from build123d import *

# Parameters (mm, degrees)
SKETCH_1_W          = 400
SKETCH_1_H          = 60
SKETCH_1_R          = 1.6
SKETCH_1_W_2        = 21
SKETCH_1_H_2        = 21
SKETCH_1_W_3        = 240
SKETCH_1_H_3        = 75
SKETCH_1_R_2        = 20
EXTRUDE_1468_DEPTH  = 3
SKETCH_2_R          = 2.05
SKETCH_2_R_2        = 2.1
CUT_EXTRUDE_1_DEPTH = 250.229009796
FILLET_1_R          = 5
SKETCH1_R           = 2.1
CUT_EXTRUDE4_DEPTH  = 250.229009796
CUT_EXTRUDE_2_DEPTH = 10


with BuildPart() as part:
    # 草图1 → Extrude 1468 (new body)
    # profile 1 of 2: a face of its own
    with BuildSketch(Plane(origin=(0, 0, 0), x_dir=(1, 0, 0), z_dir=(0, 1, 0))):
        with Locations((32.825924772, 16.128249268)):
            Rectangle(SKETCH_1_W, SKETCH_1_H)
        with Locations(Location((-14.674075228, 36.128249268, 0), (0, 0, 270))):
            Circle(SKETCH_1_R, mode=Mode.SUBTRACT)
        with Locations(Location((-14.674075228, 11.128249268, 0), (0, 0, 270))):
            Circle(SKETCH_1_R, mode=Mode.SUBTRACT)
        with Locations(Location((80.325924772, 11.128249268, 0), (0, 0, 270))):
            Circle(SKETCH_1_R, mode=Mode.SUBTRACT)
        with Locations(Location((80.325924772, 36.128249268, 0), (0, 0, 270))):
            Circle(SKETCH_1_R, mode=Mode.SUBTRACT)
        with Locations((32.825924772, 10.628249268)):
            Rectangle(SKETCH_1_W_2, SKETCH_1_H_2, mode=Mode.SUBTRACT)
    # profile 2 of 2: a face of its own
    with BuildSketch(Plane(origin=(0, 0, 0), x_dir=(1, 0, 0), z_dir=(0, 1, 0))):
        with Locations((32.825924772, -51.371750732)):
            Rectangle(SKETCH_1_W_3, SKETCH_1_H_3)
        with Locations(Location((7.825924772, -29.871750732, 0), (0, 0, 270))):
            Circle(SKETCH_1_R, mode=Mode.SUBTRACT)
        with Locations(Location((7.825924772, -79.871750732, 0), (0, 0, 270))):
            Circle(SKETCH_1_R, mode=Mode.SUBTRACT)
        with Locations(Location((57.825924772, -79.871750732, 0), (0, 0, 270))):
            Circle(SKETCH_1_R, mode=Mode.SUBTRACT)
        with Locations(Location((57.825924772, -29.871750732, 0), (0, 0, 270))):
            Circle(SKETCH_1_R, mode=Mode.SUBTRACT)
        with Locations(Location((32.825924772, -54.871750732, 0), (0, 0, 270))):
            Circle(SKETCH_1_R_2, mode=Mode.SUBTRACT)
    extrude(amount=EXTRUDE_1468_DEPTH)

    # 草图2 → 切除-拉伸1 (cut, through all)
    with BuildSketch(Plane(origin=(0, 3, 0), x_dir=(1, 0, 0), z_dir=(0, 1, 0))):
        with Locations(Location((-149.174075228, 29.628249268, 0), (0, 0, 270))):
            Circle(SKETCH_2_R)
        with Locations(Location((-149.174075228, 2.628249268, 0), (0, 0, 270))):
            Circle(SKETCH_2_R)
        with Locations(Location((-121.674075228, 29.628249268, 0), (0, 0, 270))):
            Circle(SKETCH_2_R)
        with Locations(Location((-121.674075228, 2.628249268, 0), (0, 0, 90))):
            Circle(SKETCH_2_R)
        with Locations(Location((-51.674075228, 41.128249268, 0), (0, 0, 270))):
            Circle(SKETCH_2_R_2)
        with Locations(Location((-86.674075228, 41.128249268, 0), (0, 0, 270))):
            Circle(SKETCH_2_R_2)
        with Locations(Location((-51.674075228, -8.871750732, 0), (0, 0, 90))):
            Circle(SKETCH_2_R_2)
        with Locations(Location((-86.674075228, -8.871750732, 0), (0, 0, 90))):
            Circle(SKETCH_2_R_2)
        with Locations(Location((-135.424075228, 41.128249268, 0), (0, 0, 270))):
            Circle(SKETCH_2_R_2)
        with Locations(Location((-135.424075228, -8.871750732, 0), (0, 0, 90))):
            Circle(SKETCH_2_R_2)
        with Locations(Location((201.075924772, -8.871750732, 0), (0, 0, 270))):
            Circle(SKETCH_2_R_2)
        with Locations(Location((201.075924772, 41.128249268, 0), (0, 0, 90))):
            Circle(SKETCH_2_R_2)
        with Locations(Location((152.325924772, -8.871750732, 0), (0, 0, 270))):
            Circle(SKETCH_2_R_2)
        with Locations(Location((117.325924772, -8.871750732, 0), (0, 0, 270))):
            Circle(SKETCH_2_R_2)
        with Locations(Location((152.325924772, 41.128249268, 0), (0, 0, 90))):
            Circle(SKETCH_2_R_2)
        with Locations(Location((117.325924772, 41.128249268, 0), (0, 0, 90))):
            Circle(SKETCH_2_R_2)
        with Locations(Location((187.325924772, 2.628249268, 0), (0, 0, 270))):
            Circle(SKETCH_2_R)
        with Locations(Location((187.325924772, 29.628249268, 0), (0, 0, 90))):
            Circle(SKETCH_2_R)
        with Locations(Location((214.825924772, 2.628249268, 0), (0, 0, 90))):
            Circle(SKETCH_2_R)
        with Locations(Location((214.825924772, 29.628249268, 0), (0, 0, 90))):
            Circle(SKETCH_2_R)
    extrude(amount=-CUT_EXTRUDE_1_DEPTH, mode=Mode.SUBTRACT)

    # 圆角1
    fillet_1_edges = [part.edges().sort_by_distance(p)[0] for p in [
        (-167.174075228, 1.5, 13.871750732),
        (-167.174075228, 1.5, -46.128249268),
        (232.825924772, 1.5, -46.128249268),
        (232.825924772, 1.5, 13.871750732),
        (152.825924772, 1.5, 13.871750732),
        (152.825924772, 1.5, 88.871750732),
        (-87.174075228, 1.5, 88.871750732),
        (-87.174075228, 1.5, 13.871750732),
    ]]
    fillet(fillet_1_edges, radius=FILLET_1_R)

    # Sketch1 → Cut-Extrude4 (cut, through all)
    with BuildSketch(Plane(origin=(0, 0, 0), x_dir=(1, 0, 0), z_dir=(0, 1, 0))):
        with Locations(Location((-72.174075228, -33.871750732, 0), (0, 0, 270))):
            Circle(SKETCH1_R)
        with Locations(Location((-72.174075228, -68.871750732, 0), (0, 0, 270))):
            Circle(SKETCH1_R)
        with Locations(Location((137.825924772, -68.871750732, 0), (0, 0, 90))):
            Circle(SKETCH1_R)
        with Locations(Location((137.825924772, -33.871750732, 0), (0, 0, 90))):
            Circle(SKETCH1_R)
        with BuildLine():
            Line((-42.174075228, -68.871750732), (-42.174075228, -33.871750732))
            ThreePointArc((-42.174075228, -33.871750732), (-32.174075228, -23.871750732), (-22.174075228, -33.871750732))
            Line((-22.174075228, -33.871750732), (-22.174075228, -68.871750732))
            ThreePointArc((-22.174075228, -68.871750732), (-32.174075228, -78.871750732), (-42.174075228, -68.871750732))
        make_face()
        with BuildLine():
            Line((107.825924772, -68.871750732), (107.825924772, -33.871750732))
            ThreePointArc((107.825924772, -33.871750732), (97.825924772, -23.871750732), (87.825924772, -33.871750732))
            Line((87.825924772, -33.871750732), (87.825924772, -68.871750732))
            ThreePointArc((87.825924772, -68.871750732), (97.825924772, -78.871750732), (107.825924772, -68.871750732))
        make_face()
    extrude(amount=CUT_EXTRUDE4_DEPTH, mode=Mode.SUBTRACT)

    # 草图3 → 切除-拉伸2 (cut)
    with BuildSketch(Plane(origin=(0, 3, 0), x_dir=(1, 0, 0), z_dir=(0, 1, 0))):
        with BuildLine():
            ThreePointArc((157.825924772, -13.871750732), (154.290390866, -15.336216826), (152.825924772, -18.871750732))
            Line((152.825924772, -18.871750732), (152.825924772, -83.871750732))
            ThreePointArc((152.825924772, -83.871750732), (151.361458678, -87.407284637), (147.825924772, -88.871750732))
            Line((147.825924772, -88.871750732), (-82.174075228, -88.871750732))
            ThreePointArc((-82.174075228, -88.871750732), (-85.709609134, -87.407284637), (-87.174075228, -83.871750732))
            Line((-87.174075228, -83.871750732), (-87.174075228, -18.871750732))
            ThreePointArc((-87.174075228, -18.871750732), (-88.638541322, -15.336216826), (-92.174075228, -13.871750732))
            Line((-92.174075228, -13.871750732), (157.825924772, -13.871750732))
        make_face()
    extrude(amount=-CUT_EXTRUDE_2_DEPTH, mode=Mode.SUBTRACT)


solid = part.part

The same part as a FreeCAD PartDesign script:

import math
import FreeCAD as App
import Part
import Sketcher
Q = App.Units.Quantity


def edges_at(feature, points):
    """Names of the edges that pass closest to the given points."""
    edges = feature.Shape.Edges
    near = lambda p: min(range(len(edges)), key=lambda i: edges[i].distToShape(Part.Vertex(*p))[0])
    return sorted({f"Edge{near(p) + 1}" for p in points})

doc = App.newDocument("Part")
body = doc.addObject("PartDesign::Body", "Body")

sketch1 = body.newObject("Sketcher::SketchObject", "Sketch")
sketch1.AttachmentSupport = (doc.getObject("XZ_Plane"), [""])
sketch1.MapMode = "FlatFace"
sketch1.addGeometry([
    Part.LineSegment(App.Vector(-167.2, -46.1, 0), App.Vector(-167.2, 13.9, 0)),
    Part.LineSegment(App.Vector(-167.2, 13.9, 0), App.Vector(-87.2, 13.9, 0)),
    Part.LineSegment(App.Vector(-87.2, 13.9, 0), App.Vector(-87.2, 88.9, 0)),
    Part.LineSegment(App.Vector(-87.2, 88.9, 0), App.Vector(152.8, 88.9, 0)),
    Part.LineSegment(App.Vector(152.8, 88.9, 0), App.Vector(152.8, 13.9, 0)),
    Part.LineSegment(App.Vector(152.8, 13.9, 0), App.Vector(232.8, 13.9, 0)),
    Part.LineSegment(App.Vector(232.8, 13.9, 0), App.Vector(232.8, -46.1, 0)),
    Part.LineSegment(App.Vector(232.8, -46.1, 0), App.Vector(-167.2, -46.1, 0)),
    Part.Circle(App.Vector(-14.7, -11.1, 0), App.Vector(0, 0, 1), 1.6),
    Part.LineSegment(App.Vector(43.3, -0.1, 0), App.Vector(22.3, -0.1, 0)),
    Part.LineSegment(App.Vector(22.3, -0.1, 0), App.Vector(22.3, -21.1, 0)),
    Part.LineSegment(App.Vector(22.3, -21.1, 0), App.Vector(43.3, -21.1, 0)),
    Part.LineSegment(App.Vector(43.3, -21.1, 0), App.Vector(43.3, -0.1, 0)),
    Part.Circle(App.Vector(80.3, -11.1, 0), App.Vector(0, 0, 1), 1.6),
    Part.Circle(App.Vector(-14.7, -36.1, 0), App.Vector(0, 0, 1), 1.6),
    Part.Circle(App.Vector(80.3, -36.1, 0), App.Vector(0, 0, 1), 1.6),
    Part.Circle(App.Vector(57.8, 29.9, 0), App.Vector(0, 0, 1), 1.6),
    Part.Circle(App.Vector(7.8, 79.9, 0), App.Vector(0, 0, 1), 1.6),
    Part.Circle(App.Vector(57.8, 79.9, 0), App.Vector(0, 0, 1), 1.6),
    Part.Circle(App.Vector(32.8, 54.9, 0), App.Vector(0, 0, 1), 20),
    Part.Circle(App.Vector(7.8, 29.9, 0), App.Vector(0, 0, 1), 1.6),
], False)
sketch1.addConstraint([
    Sketcher.Constraint("Coincident", 0, 2, 1, 1),
    Sketcher.Constraint("Coincident", 1, 2, 2, 1),
    Sketcher.Constraint("Coincident", 2, 2, 3, 1),
    Sketcher.Constraint("Coincident", 3, 2, 4, 1),
    Sketcher.Constraint("Coincident", 4, 2, 5, 1),
    Sketcher.Constraint("Coincident", 5, 2, 6, 1),
    Sketcher.Constraint("Coincident", 6, 2, 7, 1),
    Sketcher.Constraint("Coincident", 7, 2, 0, 1),
    Sketcher.Constraint("Coincident", 9, 2, 10, 1),
    Sketcher.Constraint("Coincident", 10, 2, 11, 1),
    Sketcher.Constraint("Coincident", 11, 2, 12, 1),
    Sketcher.Constraint("Coincident", 12, 2, 9, 1),
    Sketcher.Constraint("Vertical", 0),
    Sketcher.Constraint("Horizontal", 1),
    Sketcher.Constraint("Vertical", 2),
    Sketcher.Constraint("Horizontal", 3),
    Sketcher.Constraint("Vertical", 4),
    Sketcher.Constraint("Horizontal", 5),
    Sketcher.Constraint("Vertical", 6),
    Sketcher.Constraint("Horizontal", 7),
    Sketcher.Constraint("Horizontal", 9),
    Sketcher.Constraint("Vertical", 10),
    Sketcher.Constraint("Horizontal", 11),
    Sketcher.Constraint("Vertical", 12),
    Sketcher.Constraint("Equal", 8, 13),
    Sketcher.Constraint("Equal", 13, 14),
    Sketcher.Constraint("Equal", 14, 15),
    Sketcher.Constraint("Equal", 15, 16),
    Sketcher.Constraint("Equal", 16, 17),
    Sketcher.Constraint("Equal", 17, 18),
    Sketcher.Constraint("Equal", 18, 20),
    Sketcher.Constraint("Horizontal", 8, 3, 13, 3),
    Sketcher.Constraint("Horizontal", 14, 3, 15, 3),
    Sketcher.Constraint("Horizontal", 17, 3, 18, 3),
    Sketcher.Constraint("Horizontal", 16, 3, 20, 3),
    Sketcher.Constraint("Horizontal", 1, 2, 4, 2),
    Sketcher.Constraint("Vertical", 8, 3, 14, 3),
    Sketcher.Constraint("Vertical", 13, 3, 15, 3),
    Sketcher.Constraint("Vertical", 16, 3, 18, 3),
    Sketcher.Constraint("Vertical", 17, 3, 20, 3),
    Sketcher.Constraint("Equal", 1, 5),
    Sketcher.Constraint("Equal", 11, 10),
    Sketcher.Constraint("Diameter", 19, Q("40 mm")),
    Sketcher.Constraint("Diameter", 8, Q("3.2 mm")),
    Sketcher.Constraint("DistanceX", 1, 1, 1, 2, Q("80 mm")),
    Sketcher.Constraint("DistanceX", 3, 1, 3, 2, Q("240 mm")),
    Sketcher.Constraint("DistanceX", 9, 2, 9, 1, Q("21 mm")),
    Sketcher.Constraint("DistanceY", 0, 1, 0, 2, Q("60 mm")),
    Sketcher.Constraint("DistanceY", 2, 1, 2, 2, Q("75 mm")),
    Sketcher.Constraint("DistanceX", 8, 3, 13, 3, Q("95 mm")),
    Sketcher.Constraint("DistanceY", 14, 3, 8, 3, Q("25 mm")),
    Sketcher.Constraint("DistanceY", 13, 3, 16, 3, Q("41 mm")),
    Sketcher.Constraint("DistanceX", 17, 3, 16, 3, Q("50 mm")),
    Sketcher.Constraint("DistanceY", 16, 3, 17, 3, Q("50 mm")),
    Sketcher.Constraint("DistanceX", 17, 3, 19, 3, Q("25 mm")),
    Sketcher.Constraint("DistanceY", 19, 3, 17, 3, Q("25 mm")),
    Sketcher.Constraint("DistanceY", 8, 3, 0, 2, Q("25 mm")),
    Sketcher.Constraint("DistanceX", 0, 2, 20, 3, Q("175 mm")),
    Sketcher.Constraint("DistanceY", 9, 2, 20, 3, Q("30 mm")),
    Sketcher.Constraint("DistanceX", 8, 3, 9, 2, Q("37 mm")),
    Sketcher.Constraint("DistanceX", 16, 3, 13, 3, Q("22.5 mm")),
    Sketcher.Constraint("DistanceY", 8, 3, -1, 1, Q("11.128249 mm")),
    Sketcher.Constraint("DistanceX", 8, 3, -1, 1, Q("14.674075 mm")),
])
pad1 = body.newObject("PartDesign::Pad", "Pad")
pad1.Profile = sketch1
pad1.Length = 3
pad1.Reversed = True

sketch2 = body.newObject("Sketcher::SketchObject", "Sketch001")
sketch2.AttachmentSupport = (doc.getObject("XZ_Plane"), [""])
sketch2.MapMode = "FlatFace"
sketch2.AttachmentOffset = App.Placement(App.Vector(0, 0, -3), App.Rotation())
sketch2.addGeometry([
    Part.Circle(App.Vector(-149.2, -29.6, 0), App.Vector(0, 0, 1), 2),
    Part.Circle(App.Vector(-149.2, -2.6, 0), App.Vector(0, 0, 1), 2),
    Part.Circle(App.Vector(-121.7, -29.6, 0), App.Vector(0, 0, 1), 2),
    Part.Circle(App.Vector(-121.7, -2.6, 0), App.Vector(0, 0, 1), 2),
    Part.Circle(App.Vector(-51.7, -41.1, 0), App.Vector(0, 0, 1), 2.1),
    Part.Circle(App.Vector(-86.7, -41.1, 0), App.Vector(0, 0, 1), 2.1),
    Part.Circle(App.Vector(-51.7, 8.9, 0), App.Vector(0, 0, 1), 2.1),
    Part.Circle(App.Vector(-86.7, 8.9, 0), App.Vector(0, 0, 1), 2.1),
    Part.Circle(App.Vector(-135.4, -41.1, 0), App.Vector(0, 0, 1), 2.1),
    Part.Circle(App.Vector(-135.4, 8.9, 0), App.Vector(0, 0, 1), 2.1),
    Part.Circle(App.Vector(201.1, 8.9, 0), App.Vector(0, 0, 1), 2.1),
    Part.Circle(App.Vector(201.1, -41.1, 0), App.Vector(0, 0, 1), 2.1),
    Part.Circle(App.Vector(152.3, 8.9, 0), App.Vector(0, 0, 1), 2.1),
    Part.Circle(App.Vector(117.3, 8.9, 0), App.Vector(0, 0, 1), 2.1),
    Part.Circle(App.Vector(152.3, -41.1, 0), App.Vector(0, 0, 1), 2.1),
    Part.Circle(App.Vector(117.3, -41.1, 0), App.Vector(0, 0, 1), 2.1),
    Part.Circle(App.Vector(187.3, -2.6, 0), App.Vector(0, 0, 1), 2),
    Part.Circle(App.Vector(187.3, -29.6, 0), App.Vector(0, 0, 1), 2),
    Part.Circle(App.Vector(214.8, -2.6, 0), App.Vector(0, 0, 1), 2),
    Part.Circle(App.Vector(214.8, -29.6, 0), App.Vector(0, 0, 1), 2),
], False)
sketch2.addConstraint([
    Sketcher.Constraint("Equal", 0, 1),
    Sketcher.Constraint("Equal", 1, 2),
    Sketcher.Constraint("Equal", 2, 3),
    Sketcher.Constraint("Equal", 4, 5),
    Sketcher.Constraint("Equal", 5, 6),
    Sketcher.Constraint("Equal", 6, 7),
    Sketcher.Constraint("Equal", 7, 8),
    Sketcher.Constraint("Equal", 8, 9),
    Sketcher.Constraint("Equal", 9, 10),
    Sketcher.Constraint("Equal", 10, 11),
    Sketcher.Constraint("Equal", 11, 12),
    Sketcher.Constraint("Equal", 12, 13),
    Sketcher.Constraint("Equal", 13, 14),
    Sketcher.Constraint("Equal", 14, 15),
    Sketcher.Constraint("Equal", 3, 16),
    Sketcher.Constraint("Equal", 16, 17),
    Sketcher.Constraint("Equal", 17, 18),
    Sketcher.Constraint("Equal", 18, 19),
    Sketcher.Constraint("Horizontal", 0, 3, 2, 3),
    Sketcher.Constraint("Horizontal", 1, 3, 3, 3),
    Sketcher.Constraint("Horizontal", 4, 3, 5, 3),
    Sketcher.Constraint("Horizontal", 6, 3, 7, 3),
    Sketcher.Constraint("Horizontal", 5, 3, 8, 3),
    Sketcher.Constraint("Horizontal", 7, 3, 9, 3),
    Sketcher.Constraint("Horizontal", 9, 3, 10, 3),
    Sketcher.Constraint("Horizontal", 8, 3, 11, 3),
    Sketcher.Constraint("Horizontal", 10, 3, 12, 3),
    Sketcher.Constraint("Horizontal", 12, 3, 13, 3),
    Sketcher.Constraint("Horizontal", 11, 3, 14, 3),
    Sketcher.Constraint("Horizontal", 14, 3, 15, 3),
    Sketcher.Constraint("Horizontal", 3, 3, 16, 3),
    Sketcher.Constraint("Horizontal", 2, 3, 17, 3),
    Sketcher.Constraint("Horizontal", 16, 3, 18, 3),
    Sketcher.Constraint("Horizontal", 17, 3, 19, 3),
    Sketcher.Constraint("Vertical", 0, 3, 1, 3),
    Sketcher.Constraint("Vertical", 2, 3, 3, 3),
    Sketcher.Constraint("Vertical", 4, 3, 6, 3),
    Sketcher.Constraint("Vertical", 5, 3, 7, 3),
    Sketcher.Constraint("Vertical", 8, 3, 9, 3),
    Sketcher.Constraint("Vertical", 10, 3, 11, 3),
    Sketcher.Constraint("Vertical", 12, 3, 14, 3),
    Sketcher.Constraint("Vertical", 13, 3, 15, 3),
    Sketcher.Constraint("Vertical", 16, 3, 17, 3),
    Sketcher.Constraint("Vertical", 18, 3, 19, 3),
    Sketcher.Constraint("Diameter", 0, Q("4.1 mm")),
    Sketcher.Constraint("Diameter", 4, Q("4.2 mm")),
    Sketcher.Constraint("DistanceY", 0, 3, 1, 3, Q("27 mm")),
    Sketcher.Constraint("DistanceX", 2, 3, 4, 3, Q("70 mm")),
    Sketcher.Constraint("DistanceX", 5, 3, 4, 3, Q("35 mm")),
    Sketcher.Constraint("DistanceY", 4, 3, 6, 3, Q("50 mm")),
    Sketcher.Constraint("DistanceX", 6, 3, 12, 3, Q("204 mm")),
    Sketcher.Constraint("DistanceX", 13, 3, 12, 3, Q("35 mm")),
    Sketcher.Constraint("DistanceX", 12, 3, 16, 3, Q("35 mm")),
    Sketcher.Constraint("DistanceX", 0, 3, 2, 3, Q("27.5 mm")),
    Sketcher.Constraint("DistanceY", 4, 3, 2, 3, Q("11.5 mm")),
    Sketcher.Constraint("DistanceX", 16, 3, 18, 3, Q("27.5 mm")),
    Sketcher.Constraint("DistanceX", 8, 3, 2, 3, Q("13.75 mm")),
    Sketcher.Constraint("DistanceX", 6, 3, 10, 3, Q("252.75 mm")),
    Sketcher.Constraint("DistanceY", 0, 3, -1, 1, Q("29.628249 mm")),
    Sketcher.Constraint("DistanceX", 0, 3, -1, 1, Q("149.174075 mm")),
])
pocket1 = body.newObject("PartDesign::Pocket", "Pocket")
pocket1.Profile = sketch2
pocket1.Type = "ThroughAll"
pocket1.Reversed = True
doc.recompute()

fillet = body.newObject("PartDesign::Fillet", "Fillet")
fillet.Base = (pocket1, edges_at(pocket1, [
    (-167.174, 1.5, 13.872),
    (-167.174, 1.5, -46.128),
    (232.826, 1.5, -46.128),
    (232.826, 1.5, 13.872),
    (152.826, 1.5, 13.872),
    (152.826, 1.5, 88.872),
    (-87.174, 1.5, 88.872),
    (-87.174, 1.5, 13.872),
]))
fillet.Radius = 5

sketch3 = body.newObject("Sketcher::SketchObject", "Sketch002")
sketch3.AttachmentSupport = (doc.getObject("XZ_Plane"), [""])
sketch3.MapMode = "FlatFace"
sketch3.addGeometry([
    Part.Circle(App.Vector(-72.2, 33.9, 0), App.Vector(0, 0, 1), 2.1),
    Part.Circle(App.Vector(-72.2, 68.9, 0), App.Vector(0, 0, 1), 2.1),
    Part.Circle(App.Vector(137.8, 68.9, 0), App.Vector(0, 0, 1), 2.1),
    Part.Circle(App.Vector(137.8, 33.9, 0), App.Vector(0, 0, 1), 2.1),
    Part.LineSegment(App.Vector(-42.2, 33.9, 0), App.Vector(-42.2, 68.9, 0)),
    Part.ArcOfCircle(Part.Circle(App.Vector(-32.2, 68.9, 0), App.Vector(0, 0, 1), 10), math.radians(0), math.radians(180)),
    Part.LineSegment(App.Vector(-22.2, 68.9, 0), App.Vector(-22.2, 33.9, 0)),
    Part.ArcOfCircle(Part.Circle(App.Vector(-32.2, 33.9, 0), App.Vector(0, 0, 1), 10), math.radians(180), math.radians(360)),
    Part.LineSegment(App.Vector(107.8, 68.9, 0), App.Vector(107.8, 33.9, 0)),
    Part.ArcOfCircle(Part.Circle(App.Vector(97.8, 33.9, 0), App.Vector(0, 0, 1), 10), math.radians(180), math.radians(360)),
    Part.LineSegment(App.Vector(87.8, 33.9, 0), App.Vector(87.8, 68.9, 0)),
    Part.ArcOfCircle(Part.Circle(App.Vector(97.8, 68.9, 0), App.Vector(0, 0, 1), 10), math.radians(0), math.radians(180)),
], False)
sketch3.addConstraint([
    Sketcher.Constraint("Tangent", 4, 2, 5, 2),
    Sketcher.Constraint("Tangent", 5, 1, 6, 1),
    Sketcher.Constraint("Tangent", 6, 2, 7, 2),
    Sketcher.Constraint("Tangent", 7, 1, 4, 1),
    Sketcher.Constraint("Tangent", 8, 2, 9, 2),
    Sketcher.Constraint("Tangent", 9, 1, 10, 1),
    Sketcher.Constraint("Tangent", 10, 2, 11, 2),
    Sketcher.Constraint("Tangent", 11, 1, 8, 1),
    Sketcher.Constraint("Vertical", 4),
    Sketcher.Constraint("Vertical", 6),
    Sketcher.Constraint("Vertical", 8),
    Sketcher.Constraint("Vertical", 10),
    Sketcher.Constraint("Equal", 0, 1),
    Sketcher.Constraint("Equal", 1, 2),
    Sketcher.Constraint("Equal", 2, 3),
    Sketcher.Constraint("Equal", 7, 9),
    Sketcher.Constraint("Horizontal", 1, 3, 2, 3),
    Sketcher.Constraint("Horizontal", 0, 3, 3, 3),
    Sketcher.Constraint("Horizontal", 2, 3, 5, 3),
    Sketcher.Constraint("Horizontal", 3, 3, 7, 3),
    Sketcher.Constraint("Horizontal", 7, 3, 9, 3),
    Sketcher.Constraint("Horizontal", 5, 3, 11, 3),
    Sketcher.Constraint("Vertical", 0, 3, 1, 3),
    Sketcher.Constraint("Vertical", 2, 3, 3, 3),
    Sketcher.Constraint("Radius", 5, Q("10 mm")),
    Sketcher.Constraint("Diameter", 0, Q("4.2 mm")),
    Sketcher.Constraint("DistanceY", 4, 1, 4, 2, Q("35 mm")),
    Sketcher.Constraint("DistanceX", 1, 3, 2, 3, Q("210 mm")),
    Sketcher.Constraint("DistanceX", 1, 3, 5, 3, Q("40 mm")),
    Sketcher.Constraint("DistanceX", 9, 3, 3, 3, Q("40 mm")),
    Sketcher.Constraint("DistanceY", -1, 1, 0, 3, Q("33.871751 mm")),
    Sketcher.Constraint("DistanceX", 0, 3, -1, 1, Q("72.174075 mm")),
])
pocket2 = body.newObject("PartDesign::Pocket", "Pocket001")
pocket2.Profile = sketch3
pocket2.Type = "ThroughAll"

sketch4 = body.newObject("Sketcher::SketchObject", "Sketch003")
sketch4.AttachmentSupport = (doc.getObject("XZ_Plane"), [""])
sketch4.MapMode = "FlatFace"
sketch4.AttachmentOffset = App.Placement(App.Vector(0, 0, -3), App.Rotation())
sketch4.addGeometry([
    Part.ArcOfCircle(Part.Circle(App.Vector(158, 19, 0), App.Vector(0, 0, 1), 5), math.radians(180), math.radians(270)),
    Part.LineSegment(App.Vector(158, 14, 0), App.Vector(-92, 14, 0)),
    Part.ArcOfCircle(Part.Circle(App.Vector(-92, 19, 0), App.Vector(0, 0, 1), 5), math.radians(-90), math.radians(0)),
    Part.LineSegment(App.Vector(-87, 19, 0), App.Vector(-87, 84, 0)),
    Part.ArcOfCircle(Part.Circle(App.Vector(-82, 84, 0), App.Vector(0, 0, 1), 5), math.radians(90), math.radians(180)),
    Part.LineSegment(App.Vector(-82, 89, 0), App.Vector(148, 89, 0)),
    Part.ArcOfCircle(Part.Circle(App.Vector(148, 84, 0), App.Vector(0, 0, 1), 5), math.radians(0), math.radians(90)),
    Part.LineSegment(App.Vector(153, 84, 0), App.Vector(153, 19, 0)),
], False)
sketch4.addConstraint([
    Sketcher.Constraint("Tangent", 0, 2, 1, 1),
    Sketcher.Constraint("Tangent", 1, 2, 2, 1),
    Sketcher.Constraint("Tangent", 2, 2, 3, 1),
    Sketcher.Constraint("Tangent", 3, 2, 4, 2),
    Sketcher.Constraint("Tangent", 4, 1, 5, 1),
    Sketcher.Constraint("Tangent", 5, 2, 6, 2),
    Sketcher.Constraint("Tangent", 6, 1, 7, 1),
    Sketcher.Constraint("Tangent", 7, 2, 0, 1),
    Sketcher.Constraint("Horizontal", 1),
    Sketcher.Constraint("Vertical", 3),
    Sketcher.Constraint("Horizontal", 5),
    Sketcher.Constraint("Vertical", 7),
    Sketcher.Constraint("Equal", 0, 2),
    Sketcher.Constraint("Equal", 2, 4),
    Sketcher.Constraint("Equal", 4, 6),
    Sketcher.Constraint("Radius", 0, Q("5 mm")),
    Sketcher.Constraint("DistanceX", 1, 2, 1, 1, Q("250 mm")),
    Sketcher.Constraint("DistanceY", 3, 1, 3, 2, Q("65 mm")),
    Sketcher.Constraint("DistanceY", -1, 1, 0, 3, Q("18.871751 mm")),
    Sketcher.Constraint("DistanceX", -1, 1, 0, 3, Q("157.825925 mm")),
])
pocket3 = body.newObject("PartDesign::Pocket", "Pocket002")
pocket3.Profile = sketch4
pocket3.Length = 10
pocket3.Reversed = True

doc.recompute()
